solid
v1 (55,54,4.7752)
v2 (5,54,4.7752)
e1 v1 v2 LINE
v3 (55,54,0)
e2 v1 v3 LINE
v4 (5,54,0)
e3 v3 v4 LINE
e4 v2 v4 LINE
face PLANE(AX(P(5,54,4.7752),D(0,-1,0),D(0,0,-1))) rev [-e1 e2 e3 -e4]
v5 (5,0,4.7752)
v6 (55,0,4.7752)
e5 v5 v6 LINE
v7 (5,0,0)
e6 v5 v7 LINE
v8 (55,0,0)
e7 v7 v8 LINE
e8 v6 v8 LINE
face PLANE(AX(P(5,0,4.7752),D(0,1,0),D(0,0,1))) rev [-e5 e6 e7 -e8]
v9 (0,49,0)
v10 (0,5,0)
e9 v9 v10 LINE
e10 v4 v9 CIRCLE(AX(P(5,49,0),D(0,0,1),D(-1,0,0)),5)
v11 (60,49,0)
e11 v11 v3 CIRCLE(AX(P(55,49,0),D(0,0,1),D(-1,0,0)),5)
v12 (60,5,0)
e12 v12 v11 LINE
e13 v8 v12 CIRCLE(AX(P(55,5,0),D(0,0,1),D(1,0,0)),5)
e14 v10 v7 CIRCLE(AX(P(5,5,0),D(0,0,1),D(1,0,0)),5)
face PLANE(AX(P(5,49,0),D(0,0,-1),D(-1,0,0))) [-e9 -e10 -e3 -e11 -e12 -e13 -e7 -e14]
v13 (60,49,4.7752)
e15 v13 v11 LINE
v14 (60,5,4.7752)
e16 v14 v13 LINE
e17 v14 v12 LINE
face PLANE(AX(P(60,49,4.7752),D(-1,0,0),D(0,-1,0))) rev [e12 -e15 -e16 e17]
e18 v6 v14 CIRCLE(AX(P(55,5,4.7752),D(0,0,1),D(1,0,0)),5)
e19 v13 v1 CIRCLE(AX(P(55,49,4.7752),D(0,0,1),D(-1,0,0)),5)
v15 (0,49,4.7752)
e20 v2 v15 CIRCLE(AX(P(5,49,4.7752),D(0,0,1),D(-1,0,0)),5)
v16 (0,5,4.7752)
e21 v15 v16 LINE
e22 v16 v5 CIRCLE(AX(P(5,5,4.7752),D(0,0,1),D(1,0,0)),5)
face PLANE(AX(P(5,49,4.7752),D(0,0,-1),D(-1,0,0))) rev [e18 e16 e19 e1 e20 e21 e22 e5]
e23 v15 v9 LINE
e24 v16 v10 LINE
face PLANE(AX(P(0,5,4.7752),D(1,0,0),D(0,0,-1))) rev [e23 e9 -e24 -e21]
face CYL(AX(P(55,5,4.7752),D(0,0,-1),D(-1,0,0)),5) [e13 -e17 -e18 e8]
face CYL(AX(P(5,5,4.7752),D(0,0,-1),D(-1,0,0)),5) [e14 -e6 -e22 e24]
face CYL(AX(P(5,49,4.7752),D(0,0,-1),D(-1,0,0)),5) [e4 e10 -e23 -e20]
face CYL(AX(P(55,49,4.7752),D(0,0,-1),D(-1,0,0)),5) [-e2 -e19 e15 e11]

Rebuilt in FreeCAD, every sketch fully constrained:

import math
import FreeCAD as App
import Part
import Sketcher
from FreeCAD import Vector

doc = App.newDocument("Part")
params = doc.addObject("Spreadsheet::Sheet", "Params")
for row, (alias, value) in enumerate([
    ("sketch1_radius", "5 mm"),
    ("sketch1_width", "50 mm"),
    ("sketch1_height", "44 mm"),
    ("pad1_length", "4.7752 mm"),
], start=1):
    params.set(f"A{row}", alias)
    params.set(f"B{row}", "=" + value)
    params.setAlias(f"B{row}", alias)

body = doc.addObject("PartDesign::Body", "Body")

sketch1 = body.newObject("Sketcher::SketchObject", "Sketch")
sketch1.AttachmentSupport = (doc.getObject("XY_Plane"), [""])
sketch1.MapMode = "FlatFace"
sketch1.addGeometry([
    Part.LineSegment(Vector(0, 49, 0), Vector(0, 5, 0)),
    Part.ArcOfCircle(Part.Circle(Vector(5, 5, 0), Vector(0, 0, 1), 5), math.radians(180), math.radians(270)),
    Part.LineSegment(Vector(5, 0, 0), Vector(55, 0, 0)),
    Part.ArcOfCircle(Part.Circle(Vector(55, 5, 0), Vector(0, 0, 1), 5), math.radians(-90), math.radians(0)),
    Part.LineSegment(Vector(60, 5, 0), Vector(60, 49, 0)),
    Part.ArcOfCircle(Part.Circle(Vector(55, 49, 0), Vector(0, 0, 1), 5), math.radians(0), math.radians(90)),
    Part.LineSegment(Vector(55, 54, 0), Vector(5, 54, 0)),
    Part.ArcOfCircle(Part.Circle(Vector(5, 49, 0), Vector(0, 0, 1), 5), math.radians(90), math.radians(180)),
], False)
sketch1.addConstraint([
    Sketcher.Constraint("Tangent", 0, 2, 1, 1),
    Sketcher.Constraint("Tangent", 1, 2, 2, 1),
    Sketcher.Constraint("Tangent", 2, 2, 3, 1),
    Sketcher.Constraint("Tangent", 3, 2, 4, 1),
    Sketcher.Constraint("Tangent", 4, 2, 5, 1),
    Sketcher.Constraint("Tangent", 5, 2, 6, 1),
    Sketcher.Constraint("Tangent", 6, 2, 7, 1),
    Sketcher.Constraint("Tangent", 7, 2, 0, 1),
    Sketcher.Constraint("Vertical", 0),
    Sketcher.Constraint("Horizontal", 2),
    Sketcher.Constraint("Vertical", 4),
    Sketcher.Constraint("Horizontal", 6),
    Sketcher.Constraint("Equal", 1, 3),
    Sketcher.Constraint("Equal", 3, 5),
    Sketcher.Constraint("Equal", 5, 7),
    Sketcher.Constraint("PointOnObject", 0, 2, -2),
    Sketcher.Constraint("PointOnObject", 1, 2, -1),
    Sketcher.Constraint("Radius", 1, 5.0),
    Sketcher.Constraint("DistanceX", 2, 1, 2, 2, 50.0),
    Sketcher.Constraint("DistanceY", 0, 2, 0, 1, 44.0),
])
sketch1.setExpression("Constraints[17]", "Params.sketch1_radius")
sketch1.setExpression("Constraints[18]", "Params.sketch1_width")
sketch1.setExpression("Constraints[19]", "Params.sketch1_height")
pad1 = body.newObject("PartDesign::Pad", "Pad")
pad1.Profile = sketch1
pad1.setExpression("Length", "Params.pad1_length")

doc.recompute()
